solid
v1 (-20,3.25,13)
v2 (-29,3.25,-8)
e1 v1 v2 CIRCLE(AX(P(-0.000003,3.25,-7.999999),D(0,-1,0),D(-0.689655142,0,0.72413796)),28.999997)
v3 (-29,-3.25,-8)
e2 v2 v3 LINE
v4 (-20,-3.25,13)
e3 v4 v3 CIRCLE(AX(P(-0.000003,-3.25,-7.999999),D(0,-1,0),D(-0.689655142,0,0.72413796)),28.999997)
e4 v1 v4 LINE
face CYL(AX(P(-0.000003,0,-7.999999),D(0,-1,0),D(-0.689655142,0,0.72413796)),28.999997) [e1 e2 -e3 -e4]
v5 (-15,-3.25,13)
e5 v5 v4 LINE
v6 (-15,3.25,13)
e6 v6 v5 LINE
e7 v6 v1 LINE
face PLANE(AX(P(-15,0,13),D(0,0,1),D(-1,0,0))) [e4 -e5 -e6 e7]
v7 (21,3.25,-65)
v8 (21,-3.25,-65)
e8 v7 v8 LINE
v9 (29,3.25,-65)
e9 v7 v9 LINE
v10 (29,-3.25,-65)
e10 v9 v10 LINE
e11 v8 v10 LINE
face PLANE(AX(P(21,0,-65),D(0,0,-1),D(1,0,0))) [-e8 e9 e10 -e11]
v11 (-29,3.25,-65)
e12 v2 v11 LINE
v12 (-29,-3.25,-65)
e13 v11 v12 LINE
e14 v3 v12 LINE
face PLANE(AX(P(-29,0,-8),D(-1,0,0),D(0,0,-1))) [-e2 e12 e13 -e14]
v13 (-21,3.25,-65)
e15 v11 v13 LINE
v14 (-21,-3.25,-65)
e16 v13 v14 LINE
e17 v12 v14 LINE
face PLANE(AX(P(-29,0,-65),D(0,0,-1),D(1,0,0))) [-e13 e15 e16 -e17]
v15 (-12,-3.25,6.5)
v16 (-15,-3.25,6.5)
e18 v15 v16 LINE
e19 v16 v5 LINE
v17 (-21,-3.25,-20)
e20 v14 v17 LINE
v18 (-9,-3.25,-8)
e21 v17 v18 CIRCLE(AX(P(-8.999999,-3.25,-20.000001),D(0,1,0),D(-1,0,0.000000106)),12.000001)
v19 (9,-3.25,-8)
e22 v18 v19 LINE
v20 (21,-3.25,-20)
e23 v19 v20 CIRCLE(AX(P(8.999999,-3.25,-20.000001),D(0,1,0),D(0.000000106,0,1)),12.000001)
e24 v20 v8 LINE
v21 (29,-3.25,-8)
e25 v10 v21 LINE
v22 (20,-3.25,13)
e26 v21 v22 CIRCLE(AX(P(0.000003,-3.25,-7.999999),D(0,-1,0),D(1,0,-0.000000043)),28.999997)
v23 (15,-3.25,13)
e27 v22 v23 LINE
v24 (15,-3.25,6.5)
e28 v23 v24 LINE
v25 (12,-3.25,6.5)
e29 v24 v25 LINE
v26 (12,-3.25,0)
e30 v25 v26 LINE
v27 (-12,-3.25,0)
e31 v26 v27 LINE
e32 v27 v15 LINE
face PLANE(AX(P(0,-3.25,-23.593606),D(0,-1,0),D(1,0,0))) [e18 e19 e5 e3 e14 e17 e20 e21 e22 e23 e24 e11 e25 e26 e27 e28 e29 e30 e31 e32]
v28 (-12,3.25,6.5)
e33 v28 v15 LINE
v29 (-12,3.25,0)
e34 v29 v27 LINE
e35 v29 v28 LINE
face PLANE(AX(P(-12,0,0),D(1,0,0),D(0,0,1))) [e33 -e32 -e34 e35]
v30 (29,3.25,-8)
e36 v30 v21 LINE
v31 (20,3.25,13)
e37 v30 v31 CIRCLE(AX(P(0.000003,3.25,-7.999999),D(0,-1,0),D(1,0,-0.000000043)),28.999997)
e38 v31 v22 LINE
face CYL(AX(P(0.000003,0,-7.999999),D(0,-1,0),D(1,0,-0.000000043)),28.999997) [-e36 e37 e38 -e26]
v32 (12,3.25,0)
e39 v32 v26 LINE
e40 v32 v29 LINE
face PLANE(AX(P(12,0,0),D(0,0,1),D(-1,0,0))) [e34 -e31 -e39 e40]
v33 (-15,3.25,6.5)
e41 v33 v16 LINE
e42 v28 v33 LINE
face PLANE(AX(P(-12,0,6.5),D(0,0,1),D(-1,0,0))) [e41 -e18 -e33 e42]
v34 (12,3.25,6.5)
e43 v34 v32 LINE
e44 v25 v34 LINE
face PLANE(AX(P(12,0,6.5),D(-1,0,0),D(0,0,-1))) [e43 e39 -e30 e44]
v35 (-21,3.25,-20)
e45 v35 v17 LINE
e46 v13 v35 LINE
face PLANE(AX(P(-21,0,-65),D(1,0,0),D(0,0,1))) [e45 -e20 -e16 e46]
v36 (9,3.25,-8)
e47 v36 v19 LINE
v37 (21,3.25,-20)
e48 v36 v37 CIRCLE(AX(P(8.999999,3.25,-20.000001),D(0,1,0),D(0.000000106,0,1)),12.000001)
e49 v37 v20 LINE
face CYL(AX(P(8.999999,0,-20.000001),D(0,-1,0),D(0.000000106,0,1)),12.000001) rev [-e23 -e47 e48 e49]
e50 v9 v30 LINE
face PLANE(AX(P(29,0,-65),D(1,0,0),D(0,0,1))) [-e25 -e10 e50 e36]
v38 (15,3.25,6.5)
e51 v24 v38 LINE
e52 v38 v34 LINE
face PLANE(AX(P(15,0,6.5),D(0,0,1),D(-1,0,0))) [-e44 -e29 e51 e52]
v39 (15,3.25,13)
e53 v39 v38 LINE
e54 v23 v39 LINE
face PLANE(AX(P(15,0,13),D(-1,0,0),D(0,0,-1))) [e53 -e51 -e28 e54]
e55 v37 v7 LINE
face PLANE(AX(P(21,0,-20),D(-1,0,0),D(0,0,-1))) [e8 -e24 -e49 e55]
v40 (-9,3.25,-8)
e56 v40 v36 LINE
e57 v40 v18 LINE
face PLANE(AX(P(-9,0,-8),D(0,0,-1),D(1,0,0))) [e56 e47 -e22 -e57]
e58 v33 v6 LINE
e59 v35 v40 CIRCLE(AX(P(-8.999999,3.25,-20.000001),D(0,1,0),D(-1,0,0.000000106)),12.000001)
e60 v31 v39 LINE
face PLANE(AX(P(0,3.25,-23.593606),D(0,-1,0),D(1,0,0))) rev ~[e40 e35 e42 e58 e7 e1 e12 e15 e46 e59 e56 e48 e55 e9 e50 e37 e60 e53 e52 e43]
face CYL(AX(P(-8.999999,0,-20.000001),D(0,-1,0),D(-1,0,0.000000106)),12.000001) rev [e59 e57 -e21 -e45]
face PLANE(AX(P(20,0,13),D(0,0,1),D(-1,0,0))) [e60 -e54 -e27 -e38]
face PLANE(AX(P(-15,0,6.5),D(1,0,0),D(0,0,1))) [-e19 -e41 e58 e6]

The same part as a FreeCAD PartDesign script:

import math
import FreeCAD as App
import Part
import Sketcher

V = App.Vector

doc = App.newDocument("Part")
params = doc.addObject("Spreadsheet::Sheet", "Params")
for row, (alias, value) in enumerate([
    ("sketch1_radius", "12.000001 mm"),
    ("sketch1_width", "24 mm"),
    ("sketch1_width2", "3 mm"),
    ("sketch1_width3", "5 mm"),
    ("sketch1_width4", "8 mm"),
    ("pad1_length", "6.5 mm"),
], start=1):
    params.set(f"A{row}", alias)
    params.set(f"B{row}", "=" + value)
    params.setAlias(f"B{row}", alias)

body = doc.addObject("PartDesign::Body", "Body")

sketch1 = body.newObject("Sketcher::SketchObject", "Sketch")
sketch1.AttachmentSupport = (doc.getObject("XZ_Plane"), [""])
sketch1.MapMode = "FlatFace"
sketch1.addGeometry([
    Part.LineSegment(V(12, 6.5, 0), V(12, 0, 0)),
    Part.LineSegment(V(12, 0, 0), V(-12, 0, 0)),
    Part.LineSegment(V(-12, 0, 0), V(-12, 6.5, 0)),
    Part.LineSegment(V(-12, 6.5, 0), V(-15, 6.5, 0)),
    Part.LineSegment(V(-15, 6.5, 0), V(-15, 13, 0)),
    Part.LineSegment(V(-15, 13, 0), V(-20, 13, 0)),
    Part.ArcOfCircle(Part.Circle(V(0, -8, 0), V(0, 0, 1), 29), math.radians(134), math.radians(180)),
    Part.LineSegment(V(-29, -8, 0), V(-29, -65, 0)),
    Part.LineSegment(V(-29, -65, 0), V(-21, -65, 0)),
    Part.LineSegment(V(-21, -65, 0), V(-21, -20, 0)),
    Part.ArcOfCircle(Part.Circle(V(-9, -20, 0), V(0, 0, 1), 12), math.radians(90), math.radians(180)),
    Part.LineSegment(V(-9, -8, 0), V(9, -8, 0)),
    Part.ArcOfCircle(Part.Circle(V(9, -20, 0), V(0, 0, 1), 12), math.radians(0), math.radians(90)),
    Part.LineSegment(V(21, -20, 0), V(21, -65, 0)),
    Part.LineSegment(V(21, -65, 0), V(29, -65, 0)),
    Part.LineSegment(V(29, -65, 0), V(29, -8, 0)),
    Part.ArcOfCircle(Part.Circle(V(0, -8, 0), V(0, 0, 1), 29), math.radians(0), math.radians(46)),
    Part.LineSegment(V(20, 13, 0), V(15, 13, 0)),
    Part.LineSegment(V(15, 13, 0), V(15, 6.5, 0)),
    Part.LineSegment(V(15, 6.5, 0), V(12, 6.5, 0)),
], False)
sketch1.addConstraint([
    Sketcher.Constraint("Coincident", 0, 2, 1, 1),
    Sketcher.Constraint("Coincident", 1, 2, 2, 1),
    Sketcher.Constraint("Coincident", 2, 2, 3, 1),
    Sketcher.Constraint("Coincident", 3, 2, 4, 1),
    Sketcher.Constraint("Coincident", 4, 2, 5, 1),
    Sketcher.Constraint("Coincident", 5, 2, 6, 1),
    Sketcher.Constraint("Tangent", 6, 2, 7, 1),
    Sketcher.Constraint("Coincident", 7, 2, 8, 1),
    Sketcher.Constraint("Coincident", 8, 2, 9, 1),
    Sketcher.Constraint("Tangent", 9, 2, 10, 2),
    Sketcher.Constraint("Tangent", 10, 1, 11, 1),
    Sketcher.Constraint("Tangent", 11, 2, 12, 2),
    Sketcher.Constraint("Tangent", 12, 1, 13, 1),
    Sketcher.Constraint("Coincident", 13, 2, 14, 1),
    Sketcher.Constraint("Coincident", 14, 2, 15, 1),
    Sketcher.Constraint("Tangent", 15, 2, 16, 1),
    Sketcher.Constraint("Coincident", 16, 2, 17, 1),
    Sketcher.Constraint("Coincident", 17, 2, 18, 1),
    Sketcher.Constraint("Coincident", 18, 2, 19, 1),
    Sketcher.Constraint("Coincident", 19, 2, 0, 1),
    Sketcher.Constraint("Vertical", 0),
    Sketcher.Constraint("Horizontal", 1),
    Sketcher.Constraint("Vertical", 2),
    Sketcher.Constraint("Horizontal", 3),
    Sketcher.Constraint("Vertical", 4),
    Sketcher.Constraint("Horizontal", 5),
    Sketcher.Constraint("Vertical", 7),
    Sketcher.Constraint("Horizontal", 8),
    Sketcher.Constraint("Vertical", 9),
    Sketcher.Constraint("Horizontal", 11),
    Sketcher.Constraint("Vertical", 13),
    Sketcher.Constraint("Horizontal", 14),
    Sketcher.Constraint("Vertical", 15),
    Sketcher.Constraint("Horizontal", 17),
    Sketcher.Constraint("Vertical", 18),
    Sketcher.Constraint("Horizontal", 19),
    Sketcher.Constraint("Coincident", 16, 3, 6, 3),
    Sketcher.Constraint("Equal", 10, 12),
    Sketcher.Constraint("Equal", 6, 16),
    Sketcher.Constraint("Symmetric", 0, 2, 1, 2, -1, 1),
    Sketcher.Constraint("Symmetric", 8, 2, 13, 2, -2),
    Sketcher.Constraint("Symmetric", 5, 2, 16, 2, -2),
    Sketcher.Constraint("Symmetric", 3, 2, 18, 2, -2),
    Sketcher.Constraint("Horizontal", 6, 2, 10, 1),
    Sketcher.Constraint("Equal", 2, 4),
    Sketcher.Constraint("Radius", 10, 12.000001),
    Sketcher.Constraint("DistanceX", 1, 2, 1, 1, 24.0),
    Sketcher.Constraint("DistanceX", 3, 2, 3, 1, 3.0),
    Sketcher.Constraint("DistanceX", 5, 2, 5, 1, 5.0),
    Sketcher.Constraint("DistanceX", 8, 1, 8, 2, 8.0),
    Sketcher.Constraint("DistanceX", 11, 1, 11, 2, 18.0),
    Sketcher.Constraint("DistanceY", 7, 2, 7, 1, 57.0),
    Sketcher.Constraint("DistanceY", 0, 2, 0, 1, 6.5),
])
sketch1.setExpression("Constraints[45]", "Params.sketch1_radius")
sketch1.setExpression("Constraints[46]", "Params.sketch1_width")
sketch1.setExpression("Constraints[47]", "Params.sketch1_width2")
sketch1.setExpression("Constraints[48]", "Params.sketch1_width3")
sketch1.setExpression("Constraints[49]", "Params.sketch1_width4")
pad1 = body.newObject("PartDesign::Pad", "Pad")
pad1.Profile = sketch1
pad1.setExpression("Length", "Params.pad1_length")
pad1.Midplane = True

doc.recompute()
